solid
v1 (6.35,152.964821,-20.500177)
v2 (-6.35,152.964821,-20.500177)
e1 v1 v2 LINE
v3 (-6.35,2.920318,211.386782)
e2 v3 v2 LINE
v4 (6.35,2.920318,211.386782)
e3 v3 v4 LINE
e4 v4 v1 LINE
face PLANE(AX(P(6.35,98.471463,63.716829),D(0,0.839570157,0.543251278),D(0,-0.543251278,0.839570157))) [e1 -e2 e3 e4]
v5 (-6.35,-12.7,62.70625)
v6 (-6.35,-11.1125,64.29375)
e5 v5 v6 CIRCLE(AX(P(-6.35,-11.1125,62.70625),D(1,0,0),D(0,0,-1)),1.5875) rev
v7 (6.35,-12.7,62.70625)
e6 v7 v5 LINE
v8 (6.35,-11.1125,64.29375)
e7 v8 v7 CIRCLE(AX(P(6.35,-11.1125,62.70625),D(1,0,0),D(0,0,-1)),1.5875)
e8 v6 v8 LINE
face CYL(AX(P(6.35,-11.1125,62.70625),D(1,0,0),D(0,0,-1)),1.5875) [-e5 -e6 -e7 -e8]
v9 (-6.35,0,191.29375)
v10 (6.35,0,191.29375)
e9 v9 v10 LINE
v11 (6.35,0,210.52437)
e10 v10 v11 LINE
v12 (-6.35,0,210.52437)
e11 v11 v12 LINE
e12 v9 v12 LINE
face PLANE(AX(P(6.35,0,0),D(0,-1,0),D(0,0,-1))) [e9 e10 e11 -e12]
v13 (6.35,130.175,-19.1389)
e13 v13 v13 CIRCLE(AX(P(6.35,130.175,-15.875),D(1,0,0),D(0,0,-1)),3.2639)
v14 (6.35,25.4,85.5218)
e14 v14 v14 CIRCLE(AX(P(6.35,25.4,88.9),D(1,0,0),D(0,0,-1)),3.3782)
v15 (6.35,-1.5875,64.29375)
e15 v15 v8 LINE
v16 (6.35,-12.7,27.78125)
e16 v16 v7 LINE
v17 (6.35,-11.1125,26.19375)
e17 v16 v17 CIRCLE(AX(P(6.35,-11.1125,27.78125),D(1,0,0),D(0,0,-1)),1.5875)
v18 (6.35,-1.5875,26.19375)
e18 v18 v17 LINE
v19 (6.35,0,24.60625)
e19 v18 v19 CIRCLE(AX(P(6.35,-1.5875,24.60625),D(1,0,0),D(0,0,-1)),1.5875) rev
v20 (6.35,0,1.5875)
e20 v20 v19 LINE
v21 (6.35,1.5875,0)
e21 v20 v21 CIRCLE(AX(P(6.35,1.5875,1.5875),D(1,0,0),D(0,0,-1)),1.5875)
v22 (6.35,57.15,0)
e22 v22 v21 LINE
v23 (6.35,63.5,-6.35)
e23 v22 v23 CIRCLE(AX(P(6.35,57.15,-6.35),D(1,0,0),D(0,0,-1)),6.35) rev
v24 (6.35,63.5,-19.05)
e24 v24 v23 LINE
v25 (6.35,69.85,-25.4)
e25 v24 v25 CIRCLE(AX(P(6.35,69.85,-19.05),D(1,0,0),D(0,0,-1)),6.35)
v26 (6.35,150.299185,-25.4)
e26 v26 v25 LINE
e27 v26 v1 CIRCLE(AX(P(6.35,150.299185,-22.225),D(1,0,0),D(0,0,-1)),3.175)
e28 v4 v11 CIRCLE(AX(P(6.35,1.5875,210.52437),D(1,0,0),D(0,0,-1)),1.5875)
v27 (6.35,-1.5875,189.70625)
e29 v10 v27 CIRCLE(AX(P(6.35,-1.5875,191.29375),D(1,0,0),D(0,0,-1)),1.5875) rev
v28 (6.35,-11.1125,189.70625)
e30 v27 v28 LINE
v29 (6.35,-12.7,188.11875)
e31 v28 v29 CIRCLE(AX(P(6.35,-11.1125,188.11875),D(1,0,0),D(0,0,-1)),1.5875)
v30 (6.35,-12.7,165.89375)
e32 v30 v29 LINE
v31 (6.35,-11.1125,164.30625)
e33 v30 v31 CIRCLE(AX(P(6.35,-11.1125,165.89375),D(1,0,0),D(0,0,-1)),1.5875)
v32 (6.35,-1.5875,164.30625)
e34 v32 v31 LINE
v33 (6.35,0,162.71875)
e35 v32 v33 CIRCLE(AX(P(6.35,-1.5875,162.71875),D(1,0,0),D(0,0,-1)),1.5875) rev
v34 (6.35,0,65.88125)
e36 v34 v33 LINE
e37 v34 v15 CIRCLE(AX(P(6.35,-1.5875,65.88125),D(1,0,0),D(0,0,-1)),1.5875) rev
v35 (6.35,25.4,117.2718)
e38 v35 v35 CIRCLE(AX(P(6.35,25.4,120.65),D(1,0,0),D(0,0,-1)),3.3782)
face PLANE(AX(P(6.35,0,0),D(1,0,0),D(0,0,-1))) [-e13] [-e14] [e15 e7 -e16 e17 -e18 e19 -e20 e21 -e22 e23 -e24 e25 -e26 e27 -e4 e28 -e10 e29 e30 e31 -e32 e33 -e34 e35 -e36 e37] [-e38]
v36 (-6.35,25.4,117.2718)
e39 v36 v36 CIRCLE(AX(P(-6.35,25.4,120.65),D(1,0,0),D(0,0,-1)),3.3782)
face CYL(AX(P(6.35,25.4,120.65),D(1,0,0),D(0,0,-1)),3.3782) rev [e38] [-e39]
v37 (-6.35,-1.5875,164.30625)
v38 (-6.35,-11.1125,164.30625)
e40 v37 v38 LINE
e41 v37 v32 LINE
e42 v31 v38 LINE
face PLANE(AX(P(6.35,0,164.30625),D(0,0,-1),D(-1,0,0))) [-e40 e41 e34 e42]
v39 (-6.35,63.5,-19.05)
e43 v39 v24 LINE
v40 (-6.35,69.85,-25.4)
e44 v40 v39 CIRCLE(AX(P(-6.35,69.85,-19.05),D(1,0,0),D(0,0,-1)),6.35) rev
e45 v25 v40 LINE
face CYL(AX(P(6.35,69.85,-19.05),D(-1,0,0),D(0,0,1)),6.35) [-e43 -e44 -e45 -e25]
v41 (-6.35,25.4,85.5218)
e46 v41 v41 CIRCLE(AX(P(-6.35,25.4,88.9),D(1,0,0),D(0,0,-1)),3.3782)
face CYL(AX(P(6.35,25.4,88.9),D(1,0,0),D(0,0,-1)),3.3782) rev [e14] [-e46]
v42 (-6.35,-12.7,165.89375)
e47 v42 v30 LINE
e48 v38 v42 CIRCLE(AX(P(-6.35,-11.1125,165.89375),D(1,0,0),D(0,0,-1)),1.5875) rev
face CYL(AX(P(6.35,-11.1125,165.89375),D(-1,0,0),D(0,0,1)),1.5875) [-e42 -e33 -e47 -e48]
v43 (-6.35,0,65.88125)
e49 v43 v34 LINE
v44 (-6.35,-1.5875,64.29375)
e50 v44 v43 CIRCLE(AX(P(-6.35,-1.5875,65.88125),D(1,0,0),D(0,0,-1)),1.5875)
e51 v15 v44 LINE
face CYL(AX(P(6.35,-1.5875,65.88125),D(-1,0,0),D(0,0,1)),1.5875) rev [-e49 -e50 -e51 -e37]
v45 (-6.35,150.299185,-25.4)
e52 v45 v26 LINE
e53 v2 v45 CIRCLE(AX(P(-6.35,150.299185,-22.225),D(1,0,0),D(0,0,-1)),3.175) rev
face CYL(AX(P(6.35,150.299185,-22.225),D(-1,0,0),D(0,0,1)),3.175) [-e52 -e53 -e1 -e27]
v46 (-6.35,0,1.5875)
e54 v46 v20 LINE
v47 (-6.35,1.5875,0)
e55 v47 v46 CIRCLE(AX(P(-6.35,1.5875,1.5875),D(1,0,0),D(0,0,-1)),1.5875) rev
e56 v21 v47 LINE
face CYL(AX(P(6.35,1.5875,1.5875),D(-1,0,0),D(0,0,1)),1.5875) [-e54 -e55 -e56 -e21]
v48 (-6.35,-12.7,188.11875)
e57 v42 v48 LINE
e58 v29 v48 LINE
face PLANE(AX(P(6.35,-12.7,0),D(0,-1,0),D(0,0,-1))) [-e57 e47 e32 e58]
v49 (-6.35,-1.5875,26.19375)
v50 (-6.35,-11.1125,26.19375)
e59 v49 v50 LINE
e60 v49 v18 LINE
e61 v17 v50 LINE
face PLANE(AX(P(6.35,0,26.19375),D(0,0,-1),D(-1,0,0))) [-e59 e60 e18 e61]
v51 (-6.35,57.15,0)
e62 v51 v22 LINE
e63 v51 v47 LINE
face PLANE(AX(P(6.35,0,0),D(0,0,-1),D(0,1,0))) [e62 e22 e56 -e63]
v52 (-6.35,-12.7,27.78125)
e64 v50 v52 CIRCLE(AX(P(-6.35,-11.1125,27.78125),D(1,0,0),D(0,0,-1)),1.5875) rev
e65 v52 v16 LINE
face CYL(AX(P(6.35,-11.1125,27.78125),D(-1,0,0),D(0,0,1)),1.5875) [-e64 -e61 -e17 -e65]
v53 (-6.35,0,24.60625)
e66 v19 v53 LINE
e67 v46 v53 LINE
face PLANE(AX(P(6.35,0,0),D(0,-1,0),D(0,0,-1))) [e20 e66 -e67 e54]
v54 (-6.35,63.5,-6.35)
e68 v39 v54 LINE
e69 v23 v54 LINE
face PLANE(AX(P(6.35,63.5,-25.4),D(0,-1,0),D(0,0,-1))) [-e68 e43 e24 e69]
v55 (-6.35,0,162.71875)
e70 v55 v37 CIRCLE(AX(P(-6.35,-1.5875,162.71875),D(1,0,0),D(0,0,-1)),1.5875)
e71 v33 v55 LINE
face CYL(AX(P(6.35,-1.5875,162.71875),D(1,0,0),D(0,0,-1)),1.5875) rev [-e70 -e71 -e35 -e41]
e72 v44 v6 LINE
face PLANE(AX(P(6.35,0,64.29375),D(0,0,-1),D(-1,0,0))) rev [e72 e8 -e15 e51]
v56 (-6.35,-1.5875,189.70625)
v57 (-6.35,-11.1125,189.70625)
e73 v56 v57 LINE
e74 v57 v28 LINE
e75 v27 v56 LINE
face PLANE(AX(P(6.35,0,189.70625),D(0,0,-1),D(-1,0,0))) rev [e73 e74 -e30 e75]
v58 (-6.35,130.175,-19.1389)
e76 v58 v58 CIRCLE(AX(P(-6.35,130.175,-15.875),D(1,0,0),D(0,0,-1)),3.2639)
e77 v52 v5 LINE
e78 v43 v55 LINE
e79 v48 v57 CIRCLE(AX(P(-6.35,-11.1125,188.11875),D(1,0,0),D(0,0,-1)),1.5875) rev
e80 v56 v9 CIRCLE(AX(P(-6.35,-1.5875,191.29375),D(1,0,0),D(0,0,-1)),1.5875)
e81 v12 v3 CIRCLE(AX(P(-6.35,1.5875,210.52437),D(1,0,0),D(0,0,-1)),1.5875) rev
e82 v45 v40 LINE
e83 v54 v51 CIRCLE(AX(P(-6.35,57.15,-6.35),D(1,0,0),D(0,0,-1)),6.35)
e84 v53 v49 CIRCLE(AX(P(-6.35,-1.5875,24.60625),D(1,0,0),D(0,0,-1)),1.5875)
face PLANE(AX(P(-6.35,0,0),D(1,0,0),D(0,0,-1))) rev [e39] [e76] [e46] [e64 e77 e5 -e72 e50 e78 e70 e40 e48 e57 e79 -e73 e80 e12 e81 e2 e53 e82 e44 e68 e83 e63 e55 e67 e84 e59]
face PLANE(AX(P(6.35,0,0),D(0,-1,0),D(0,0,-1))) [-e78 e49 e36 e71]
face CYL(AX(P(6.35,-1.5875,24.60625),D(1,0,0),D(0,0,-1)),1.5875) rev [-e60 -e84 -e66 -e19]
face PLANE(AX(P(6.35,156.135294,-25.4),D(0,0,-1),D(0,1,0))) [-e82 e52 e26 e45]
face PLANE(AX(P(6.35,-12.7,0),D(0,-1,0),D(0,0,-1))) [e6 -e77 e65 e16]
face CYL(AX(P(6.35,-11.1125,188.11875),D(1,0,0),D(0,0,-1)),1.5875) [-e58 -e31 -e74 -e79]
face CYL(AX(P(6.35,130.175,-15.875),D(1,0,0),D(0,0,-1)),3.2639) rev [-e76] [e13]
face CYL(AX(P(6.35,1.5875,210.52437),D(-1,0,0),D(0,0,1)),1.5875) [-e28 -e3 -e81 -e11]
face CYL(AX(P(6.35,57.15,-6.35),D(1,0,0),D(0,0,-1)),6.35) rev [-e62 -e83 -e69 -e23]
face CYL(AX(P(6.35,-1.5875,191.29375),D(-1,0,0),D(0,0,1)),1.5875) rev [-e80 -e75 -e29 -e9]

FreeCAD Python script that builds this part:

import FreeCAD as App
import Part
import Sketcher
from FreeCAD import Vector
Q = App.Units.Quantity


def edges_at(feature, points):
    """Names of the edges that pass closest to the given points."""
    edges = feature.Shape.Edges
    near = lambda p: min(range(len(edges)), key=lambda i: edges[i].distToShape(Part.Vertex(*p))[0])
    return sorted({f"Edge{near(p) + 1}" for p in points})


def add_polygon(sketch, points):
    """Adds a closed chain of lines whose ends are joined by coincident constraints."""
    first, n = sketch.GeometryCount, len(points)
    for a, b in zip(points, points[1:] + points[:1]):
        sketch.addGeometry(Part.LineSegment(App.Vector(*a, 0), App.Vector(*b, 0)), False)
    for i in range(n):
        sketch.addConstraint(Sketcher.Constraint("Coincident", first + i, 2, first + (i + 1) % n, 1))

doc = App.newDocument("Part")
body = doc.addObject("PartDesign::Body", "Body")

sketch1 = body.newObject("Sketcher::SketchObject", "Sketch")
sketch1.AttachmentSupport = (doc.getObject("YZ_Plane"), [""])
sketch1.MapMode = "FlatFace"
add_polygon(sketch1, [(0, 0), (139.7, 0), (0, 215.9), (0, 189.70625), (-12.7, 189.70625), (-12.7, 164.30625), (0, 164.30625), (0, 64.29375), (-12.7, 64.29375), (-12.7, 26.19375), (0, 26.19375)])
sketch1.addConstraint(Sketcher.Constraint("Horizontal", 0))
sketch1.addConstraint(Sketcher.Constraint("Vertical", 2))
sketch1.addConstraint(Sketcher.Constraint("Horizontal", 3))
sketch1.addConstraint(Sketcher.Constraint("Vertical", 4))
sketch1.addConstraint(Sketcher.Constraint("Horizontal", 5))
sketch1.addConstraint(Sketcher.Constraint("Vertical", 6))
sketch1.addConstraint(Sketcher.Constraint("Horizontal", 7))
sketch1.addConstraint(Sketcher.Constraint("Vertical", 8))
sketch1.addConstraint(Sketcher.Constraint("Horizontal", 9))
sketch1.addConstraint(Sketcher.Constraint("Vertical", 10))
sketch1.addConstraint(Sketcher.Constraint("Coincident", 10, 2, -1, 1))
sketch1.addConstraint(Sketcher.Constraint("PointOnObject", 1, 2, -2))
sketch1.addConstraint(Sketcher.Constraint("PointOnObject", 5, 2, -2))
sketch1.addConstraint(Sketcher.Constraint("Vertical", 4, 2, 7, 2))
sketch1.addConstraint(Sketcher.Constraint("Equal", 2, 10))
sketch1.addConstraint(Sketcher.Constraint("DistanceY", 4, 2, 4, 1, Q("1 in")))
sketch1.addConstraint(Sketcher.Constraint("DistanceX", 0, 1, 0, 2, Q("5.5 in")))
sketch1.addConstraint(Sketcher.Constraint("DistanceX", 3, 2, 3, 1, Q("0.5 in")))
sketch1.addConstraint(Sketcher.Constraint("DistanceY", 8, 2, 8, 1, Q("1.5 in")))
sketch1.addConstraint(Sketcher.Constraint("DistanceY", -1, 1, 1, 2, Q("8.5 in")))
sketch1.addConstraint(Sketcher.Constraint("DistanceY", 2, 2, 2, 1, Q("1.03125 in")))
pad1 = body.newObject("PartDesign::Pad", "Pad")
pad1.Profile = sketch1
pad1.Length = Q("0.5 in")
pad1.Midplane = True

sketch2 = body.newObject("Sketcher::SketchObject", "Sketch001")
sketch2.AttachmentSupport = (doc.getObject("YZ_Plane"), [""])
sketch2.MapMode = "FlatFace"
sketch2.AttachmentOffset = App.Placement(Vector(0, 0, 0.25 * 25.4), App.Rotation())
sketch2.addGeometry(Part.Circle(Vector(25.4, 88.9, 0), Vector(0, 0, 1), 3.3782), False)
sketch2.addGeometry(Part.Circle(Vector(25.4, 120.65, 0), Vector(0, 0, 1), 3.3782), False)
sketch2.addConstraint(Sketcher.Constraint("Equal", 0, 1))
sketch2.addConstraint(Sketcher.Constraint("Vertical", 0, 3, 1, 3))
sketch2.addConstraint(Sketcher.Constraint("Diameter", 0, Q("0.266 in")))
sketch2.addConstraint(Sketcher.Constraint("DistanceX", -1, 1, 0, 3, Q("1 in")))
sketch2.addConstraint(Sketcher.Constraint("DistanceY", -1, 1, 0, 3, Q("3.5 in")))
sketch2.addConstraint(Sketcher.Constraint("DistanceY", -1, 1, 1, 3, Q("4.75 in")))
doc.recompute()
hole = body.newObject("PartDesign::Hole", "Hole")
hole.Profile = sketch2
hole.ThreadType = "None"
hole.Diameter = Q("0.266 in")
hole.DepthType = "Dimension"
hole.Depth = Q("0.5 in")
hole.DrillPoint = "Flat"

sketch3 = body.newObject("Sketcher::SketchObject", "Sketch002")
sketch3.AttachmentSupport = (doc.getObject("YZ_Plane"), [""])
sketch3.MapMode = "FlatFace"
sketch3.AttachmentOffset = App.Placement(Vector(0, 0, -0.25 * 25.4), App.Rotation())
add_polygon(sketch3, [(139.7, 0), (156.135294, -25.4), (63.5, -25.4), (63.5, 0)])
sketch3.addConstraint(Sketcher.Constraint("Horizontal", 1))
sketch3.addConstraint(Sketcher.Constraint("Vertical", 2))
sketch3.addConstraint(Sketcher.Constraint("Horizontal", 3))
sketch3.addConstraint(Sketcher.Constraint("PointOnObject", 2, 2, -1))
sketch3.addConstraint(Sketcher.Constraint("DistanceX", 3, 1, 3, 2, Q("3 in")))
sketch3.addConstraint(Sketcher.Constraint("DistanceY", 2, 1, 2, 2, Q("1 in")))
sketch3.addConstraint(Sketcher.Constraint("DistanceX", -1, 1, 1, 2, Q("2.5 in")))
sketch3.addConstraint(Sketcher.Constraint("DistanceX", 1, 2, 1, 1, Q("92.635294 mm")))
pad2 = body.newObject("PartDesign::Pad", "Pad001")
pad2.Profile = sketch3
pad2.Length = Q("0.5 in")
doc.recompute()

fillet = body.newObject("PartDesign::Fillet", "Fillet")
fillet.Base = (pad2, edges_at(pad2, [(0, 156.135, -25.4)]))
fillet.Radius = Q("0.125 in")
doc.recompute()

fillet2 = body.newObject("PartDesign::Fillet", "Fillet001")
fillet2.Base = (fillet, edges_at(fillet, [
    (0, 0, 0),
    (0, 0, 26.194),
    (0, -12.7, 26.194),
    (0, -12.7, 64.294),
    (0, 0, 64.294),
    (0, 0, 164.306),
    (0, -12.7, 164.306),
    (0, -12.7, 189.706),
    (0, 0, 189.706),
    (0, 0, 215.9),
]))
fillet2.Radius = Q("0.0625 in")

sketch4 = body.newObject("Sketcher::SketchObject", "Sketch003")
sketch4.AttachmentSupport = (doc.getObject("YZ_Plane"), [""])
sketch4.MapMode = "FlatFace"
sketch4.AttachmentOffset = App.Placement(Vector(0, 0, 0.25 * 25.4), App.Rotation())
sketch4.addGeometry(Part.Circle(Vector(130.175, -15.875, 0), Vector(0, 0, 1), 3.2639), False)
sketch4.addConstraint(Sketcher.Constraint("Diameter", 0, Q("0.257 in")))
sketch4.addConstraint(Sketcher.Constraint("DistanceX", -1, 1, 0, 3, Q("5.125 in")))
sketch4.addConstraint(Sketcher.Constraint("DistanceY", 0, 3, -1, 1, Q("0.625 in")))
doc.recompute()
hole2 = body.newObject("PartDesign::Hole", "Hole001")
hole2.Profile = sketch4
hole2.ThreadType = "None"
hole2.Diameter = Q("0.257 in")
hole2.DepthType = "Dimension"
hole2.Depth = Q("0.5 in")
hole2.DrillPoint = "Flat"
doc.recompute()

fillet3 = body.newObject("PartDesign::Fillet", "Fillet002")
fillet3.Base = (hole2, edges_at(hole2, [(0, 63.5, -25.4), (0, 63.5, 0)]))
fillet3.Radius = Q("0.25 in")

doc.recompute()
